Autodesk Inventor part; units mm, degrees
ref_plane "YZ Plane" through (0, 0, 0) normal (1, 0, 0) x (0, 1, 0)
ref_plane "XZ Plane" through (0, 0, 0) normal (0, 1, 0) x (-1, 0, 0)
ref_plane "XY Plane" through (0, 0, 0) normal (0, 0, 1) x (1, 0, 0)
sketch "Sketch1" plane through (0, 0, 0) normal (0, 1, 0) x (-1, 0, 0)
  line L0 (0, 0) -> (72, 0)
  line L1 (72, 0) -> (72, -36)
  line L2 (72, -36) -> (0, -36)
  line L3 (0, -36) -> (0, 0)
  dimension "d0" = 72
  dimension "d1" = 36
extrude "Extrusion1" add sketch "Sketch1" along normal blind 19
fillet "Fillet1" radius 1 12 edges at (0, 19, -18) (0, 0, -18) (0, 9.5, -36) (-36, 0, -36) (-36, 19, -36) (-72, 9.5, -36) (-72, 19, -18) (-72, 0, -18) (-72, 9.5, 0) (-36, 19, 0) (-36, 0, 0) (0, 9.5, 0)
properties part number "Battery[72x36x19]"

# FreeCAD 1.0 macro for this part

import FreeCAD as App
import Part
import Sketcher

doc = App.newDocument("Part")
params = doc.addObject("Spreadsheet::Sheet", "Params")
for row, (alias, value) in enumerate([
    ("sketch1_width", "72 mm"),
    ("sketch1_height", "36 mm"),
    ("pad1_length", "19 mm"),
    ("fillet_radius", "1 mm"),
], start=1):
    params.set(f"A{row}", alias)
    params.set(f"B{row}", "=" + value)
    params.setAlias(f"B{row}", alias)

body = doc.addObject("PartDesign::Body", "Body")

# Sketch on XZ plane
sketch1 = body.newObject("Sketcher::SketchObject", "Sketch")
sketch1.AttachmentSupport = (doc.getObject("XZ_Plane"), [""])
sketch1.MapMode = "FlatFace"
sketch1.addGeometry([
    Part.LineSegment(App.Vector(-72, 0, 0), App.Vector(0, 0, 0)),
    Part.LineSegment(App.Vector(0, 0, 0), App.Vector(0, -36, 0)),
    Part.LineSegment(App.Vector(0, -36, 0), App.Vector(-72, -36, 0)),
    Part.LineSegment(App.Vector(-72, -36, 0), App.Vector(-72, 0, 0)),
], False)
sketch1.addConstraint([
    Sketcher.Constraint("Coincident", 0, 2, 1, 1),
    Sketcher.Constraint("Coincident", 1, 2, 2, 1),
    Sketcher.Constraint("Coincident", 2, 2, 3, 1),
    Sketcher.Constraint("Coincident", 3, 2, 0, 1),
    Sketcher.Constraint("Horizontal", 0),
    Sketcher.Constraint("Vertical", 1),
    Sketcher.Constraint("Horizontal", 2),
    Sketcher.Constraint("Vertical", 3),
    Sketcher.Constraint("Coincident", 0, 2, -1, 1),
    Sketcher.Constraint("DistanceX", 0, 1, 0, 2, 72.0),
    Sketcher.Constraint("DistanceY", 1, 2, 1, 1, 36.0),
])
sketch1.setExpression("Constraints[9]", "Params.sketch1_width")
sketch1.setExpression("Constraints[10]", "Params.sketch1_height")
pad1 = body.newObject("PartDesign::Pad", "Pad")
pad1.Profile = sketch1
pad1.setExpression("Length", "Params.pad1_length")
pad1.Reversed = True
doc.recompute()

fillet = body.newObject("PartDesign::Fillet", "Fillet")
fillet.Base = (pad1, ["Edge1"])
fillet.UseAllEdges = True
fillet.setExpression("Radius", "Params.fillet_radius")

doc.recompute()
